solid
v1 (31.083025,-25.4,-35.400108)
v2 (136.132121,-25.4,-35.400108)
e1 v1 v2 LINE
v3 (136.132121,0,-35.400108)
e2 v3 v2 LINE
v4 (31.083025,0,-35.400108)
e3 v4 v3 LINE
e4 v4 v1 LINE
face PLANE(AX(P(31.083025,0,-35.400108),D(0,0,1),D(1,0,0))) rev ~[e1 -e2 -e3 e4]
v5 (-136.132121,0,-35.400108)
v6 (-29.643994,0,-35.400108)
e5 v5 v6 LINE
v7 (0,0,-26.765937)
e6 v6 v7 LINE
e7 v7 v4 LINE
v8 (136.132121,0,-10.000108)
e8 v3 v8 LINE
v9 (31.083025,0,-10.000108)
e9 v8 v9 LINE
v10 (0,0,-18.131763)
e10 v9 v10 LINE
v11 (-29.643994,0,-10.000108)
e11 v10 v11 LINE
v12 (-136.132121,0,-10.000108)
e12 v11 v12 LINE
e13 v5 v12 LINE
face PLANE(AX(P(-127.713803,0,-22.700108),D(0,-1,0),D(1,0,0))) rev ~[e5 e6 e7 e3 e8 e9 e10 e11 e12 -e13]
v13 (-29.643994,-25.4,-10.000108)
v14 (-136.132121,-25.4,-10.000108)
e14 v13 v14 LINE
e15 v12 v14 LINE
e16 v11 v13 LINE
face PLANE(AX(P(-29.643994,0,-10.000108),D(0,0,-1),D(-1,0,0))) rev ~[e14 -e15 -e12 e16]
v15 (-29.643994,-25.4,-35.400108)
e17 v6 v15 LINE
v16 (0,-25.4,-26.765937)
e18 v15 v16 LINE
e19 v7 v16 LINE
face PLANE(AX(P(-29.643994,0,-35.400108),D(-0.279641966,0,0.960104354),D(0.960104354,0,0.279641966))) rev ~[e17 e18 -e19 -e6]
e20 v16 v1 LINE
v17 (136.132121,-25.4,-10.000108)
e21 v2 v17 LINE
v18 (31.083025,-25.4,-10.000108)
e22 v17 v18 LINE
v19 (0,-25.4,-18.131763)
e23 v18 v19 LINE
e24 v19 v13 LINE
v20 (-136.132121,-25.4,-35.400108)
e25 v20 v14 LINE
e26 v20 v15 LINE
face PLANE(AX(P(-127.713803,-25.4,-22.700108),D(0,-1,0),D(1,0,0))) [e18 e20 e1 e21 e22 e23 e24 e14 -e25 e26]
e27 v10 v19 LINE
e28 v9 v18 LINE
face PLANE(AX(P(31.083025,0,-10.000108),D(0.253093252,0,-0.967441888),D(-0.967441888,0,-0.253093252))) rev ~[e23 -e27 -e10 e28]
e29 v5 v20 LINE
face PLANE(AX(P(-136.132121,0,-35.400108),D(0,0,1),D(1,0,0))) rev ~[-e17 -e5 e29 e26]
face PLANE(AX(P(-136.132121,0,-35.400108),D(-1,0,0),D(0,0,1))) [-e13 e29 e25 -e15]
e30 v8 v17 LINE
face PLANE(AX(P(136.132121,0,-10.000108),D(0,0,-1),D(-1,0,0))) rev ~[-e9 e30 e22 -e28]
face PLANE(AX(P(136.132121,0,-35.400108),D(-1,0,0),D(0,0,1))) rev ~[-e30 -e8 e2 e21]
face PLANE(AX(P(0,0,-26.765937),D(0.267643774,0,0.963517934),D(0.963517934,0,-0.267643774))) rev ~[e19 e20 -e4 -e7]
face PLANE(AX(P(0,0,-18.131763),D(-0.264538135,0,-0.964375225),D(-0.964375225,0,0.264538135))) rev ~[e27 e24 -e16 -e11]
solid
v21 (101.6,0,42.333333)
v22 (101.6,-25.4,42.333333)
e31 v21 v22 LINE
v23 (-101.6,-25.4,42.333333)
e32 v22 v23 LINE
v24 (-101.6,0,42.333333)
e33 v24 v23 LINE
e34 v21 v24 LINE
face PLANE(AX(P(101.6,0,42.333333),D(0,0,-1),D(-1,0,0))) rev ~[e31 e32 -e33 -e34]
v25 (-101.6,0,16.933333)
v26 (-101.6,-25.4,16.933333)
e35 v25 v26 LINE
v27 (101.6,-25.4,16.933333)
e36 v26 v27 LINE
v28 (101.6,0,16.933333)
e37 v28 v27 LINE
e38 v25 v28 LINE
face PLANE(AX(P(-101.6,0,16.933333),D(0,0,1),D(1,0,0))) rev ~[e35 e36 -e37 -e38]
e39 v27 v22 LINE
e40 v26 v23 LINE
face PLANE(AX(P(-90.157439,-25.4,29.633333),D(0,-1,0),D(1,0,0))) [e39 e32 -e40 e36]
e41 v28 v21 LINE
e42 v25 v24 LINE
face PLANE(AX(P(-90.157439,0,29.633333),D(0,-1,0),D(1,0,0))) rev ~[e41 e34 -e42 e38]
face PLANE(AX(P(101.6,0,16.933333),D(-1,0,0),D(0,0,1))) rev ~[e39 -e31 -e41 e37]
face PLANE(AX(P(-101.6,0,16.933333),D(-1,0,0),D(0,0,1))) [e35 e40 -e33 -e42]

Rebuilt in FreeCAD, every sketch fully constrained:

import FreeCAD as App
import Part
import Sketcher

V = App.Vector
Q = App.Units.Quantity

doc = App.newDocument("Part")
body = doc.addObject("PartDesign::Body", "Body")

sketch1 = body.newObject("Sketcher::SketchObject", "Sketch")
sketch1.AttachmentSupport = (doc.getObject("XZ_Plane"), [""])
sketch1.MapMode = "FlatFace"
sketch1.addGeometry([
    Part.LineSegment(V(-102, 42, 0), V(-102, 17, 0)),
    Part.LineSegment(V(-102, 17, 0), V(102, 17, 0)),
    Part.LineSegment(V(102, 17, 0), V(102, 42, 0)),
    Part.LineSegment(V(102, 42, 0), V(-102, 42, 0)),
], False)
sketch1.addConstraint([
    Sketcher.Constraint("Coincident", 0, 2, 1, 1),
    Sketcher.Constraint("Coincident", 1, 2, 2, 1),
    Sketcher.Constraint("Coincident", 2, 2, 3, 1),
    Sketcher.Constraint("Coincident", 3, 2, 0, 1),
    Sketcher.Constraint("Vertical", 0),
    Sketcher.Constraint("Horizontal", 1),
    Sketcher.Constraint("Vertical", 2),
    Sketcher.Constraint("Horizontal", 3),
    Sketcher.Constraint("DistanceX", 1, 1, 1, 2, Q("8 in")),
    Sketcher.Constraint("DistanceY", 0, 2, 0, 1, Q("1 in")),
    Sketcher.Constraint("DistanceX", 0, 2, -1, 1, Q("4 in")),
    Sketcher.Constraint("DistanceY", -1, 1, 0, 2, 16.933333),
])
pad1 = body.newObject("PartDesign::Pad", "Pad")
pad1.Profile = sketch1
pad1.Length = Q("1 in")
body2 = doc.addObject("PartDesign::Body", "Body001")

sketch2 = body2.newObject("Sketcher::SketchObject", "Sketch001")
sketch2.AttachmentSupport = (doc.getObject("XZ_Plane001"), [""])
sketch2.MapMode = "FlatFace"
sketch2.addGeometry([
    Part.LineSegment(V(-136, -10, 0), V(-136, -35, 0)),
    Part.LineSegment(V(-136, -35, 0), V(-30, -35, 0)),
    Part.LineSegment(V(-30, -35, 0), V(0, -27, 0)),
    Part.LineSegment(V(0, -27, 0), V(31, -35, 0)),
    Part.LineSegment(V(31, -35, 0), V(136, -35, 0)),
    Part.LineSegment(V(136, -35, 0), V(136, -10, 0)),
    Part.LineSegment(V(136, -10, 0), V(31, -10, 0)),
    Part.LineSegment(V(31, -10, 0), V(0, -18, 0)),
    Part.LineSegment(V(0, -18, 0), V(-30, -10, 0)),
    Part.LineSegment(V(-30, -10, 0), V(-136, -10, 0)),
], False)
sketch2.addConstraint([
    Sketcher.Constraint("Coincident", 0, 2, 1, 1),
    Sketcher.Constraint("Coincident", 1, 2, 2, 1),
    Sketcher.Constraint("Coincident", 2, 2, 3, 1),
    Sketcher.Constraint("Coincident", 3, 2, 4, 1),
    Sketcher.Constraint("Coincident", 4, 2, 5, 1),
    Sketcher.Constraint("Coincident", 5, 2, 6, 1),
    Sketcher.Constraint("Coincident", 6, 2, 7, 1),
    Sketcher.Constraint("Coincident", 7, 2, 8, 1),
    Sketcher.Constraint("Coincident", 8, 2, 9, 1),
    Sketcher.Constraint("Coincident", 9, 2, 0, 1),
    Sketcher.Constraint("Vertical", 0),
    Sketcher.Constraint("Horizontal", 1),
    Sketcher.Constraint("Horizontal", 4),
    Sketcher.Constraint("Vertical", 5),
    Sketcher.Constraint("Horizontal", 6),
    Sketcher.Constraint("Horizontal", 9),
    Sketcher.Constraint("Symmetric", 0, 2, 4, 2, -2),
    Sketcher.Constraint("PointOnObject", 2, 2, -2),
    Sketcher.Constraint("PointOnObject", 7, 2, -2),
    Sketcher.Constraint("Horizontal", 6, 2, 8, 2),
    Sketcher.Constraint("Vertical", 3, 2, 6, 2),
    Sketcher.Constraint("Vertical", 1, 2, 8, 2),
    Sketcher.Constraint("DistanceY", 0, 2, 0, 1, Q("1 in")),
    Sketcher.Constraint("DistanceX", 1, 1, 1, 2, 106.488127),
    Sketcher.Constraint("DistanceX", 4, 1, 4, 2, 105.049096),
    Sketcher.Constraint("DistanceX", 0, 2, -1, 1, 136.132121),
    Sketcher.Constraint("DistanceY", 1, 2, 2, 2, 8.634171),
    Sketcher.Constraint("Distance", 7, 32.129087),
    Sketcher.Constraint("DistanceY", 0, 2, -1, 1, 35.400108),
])
pad2 = body2.newObject("PartDesign::Pad", "Pad001")
pad2.Profile = sketch2
pad2.Length = Q("1 in")

doc.recompute()
